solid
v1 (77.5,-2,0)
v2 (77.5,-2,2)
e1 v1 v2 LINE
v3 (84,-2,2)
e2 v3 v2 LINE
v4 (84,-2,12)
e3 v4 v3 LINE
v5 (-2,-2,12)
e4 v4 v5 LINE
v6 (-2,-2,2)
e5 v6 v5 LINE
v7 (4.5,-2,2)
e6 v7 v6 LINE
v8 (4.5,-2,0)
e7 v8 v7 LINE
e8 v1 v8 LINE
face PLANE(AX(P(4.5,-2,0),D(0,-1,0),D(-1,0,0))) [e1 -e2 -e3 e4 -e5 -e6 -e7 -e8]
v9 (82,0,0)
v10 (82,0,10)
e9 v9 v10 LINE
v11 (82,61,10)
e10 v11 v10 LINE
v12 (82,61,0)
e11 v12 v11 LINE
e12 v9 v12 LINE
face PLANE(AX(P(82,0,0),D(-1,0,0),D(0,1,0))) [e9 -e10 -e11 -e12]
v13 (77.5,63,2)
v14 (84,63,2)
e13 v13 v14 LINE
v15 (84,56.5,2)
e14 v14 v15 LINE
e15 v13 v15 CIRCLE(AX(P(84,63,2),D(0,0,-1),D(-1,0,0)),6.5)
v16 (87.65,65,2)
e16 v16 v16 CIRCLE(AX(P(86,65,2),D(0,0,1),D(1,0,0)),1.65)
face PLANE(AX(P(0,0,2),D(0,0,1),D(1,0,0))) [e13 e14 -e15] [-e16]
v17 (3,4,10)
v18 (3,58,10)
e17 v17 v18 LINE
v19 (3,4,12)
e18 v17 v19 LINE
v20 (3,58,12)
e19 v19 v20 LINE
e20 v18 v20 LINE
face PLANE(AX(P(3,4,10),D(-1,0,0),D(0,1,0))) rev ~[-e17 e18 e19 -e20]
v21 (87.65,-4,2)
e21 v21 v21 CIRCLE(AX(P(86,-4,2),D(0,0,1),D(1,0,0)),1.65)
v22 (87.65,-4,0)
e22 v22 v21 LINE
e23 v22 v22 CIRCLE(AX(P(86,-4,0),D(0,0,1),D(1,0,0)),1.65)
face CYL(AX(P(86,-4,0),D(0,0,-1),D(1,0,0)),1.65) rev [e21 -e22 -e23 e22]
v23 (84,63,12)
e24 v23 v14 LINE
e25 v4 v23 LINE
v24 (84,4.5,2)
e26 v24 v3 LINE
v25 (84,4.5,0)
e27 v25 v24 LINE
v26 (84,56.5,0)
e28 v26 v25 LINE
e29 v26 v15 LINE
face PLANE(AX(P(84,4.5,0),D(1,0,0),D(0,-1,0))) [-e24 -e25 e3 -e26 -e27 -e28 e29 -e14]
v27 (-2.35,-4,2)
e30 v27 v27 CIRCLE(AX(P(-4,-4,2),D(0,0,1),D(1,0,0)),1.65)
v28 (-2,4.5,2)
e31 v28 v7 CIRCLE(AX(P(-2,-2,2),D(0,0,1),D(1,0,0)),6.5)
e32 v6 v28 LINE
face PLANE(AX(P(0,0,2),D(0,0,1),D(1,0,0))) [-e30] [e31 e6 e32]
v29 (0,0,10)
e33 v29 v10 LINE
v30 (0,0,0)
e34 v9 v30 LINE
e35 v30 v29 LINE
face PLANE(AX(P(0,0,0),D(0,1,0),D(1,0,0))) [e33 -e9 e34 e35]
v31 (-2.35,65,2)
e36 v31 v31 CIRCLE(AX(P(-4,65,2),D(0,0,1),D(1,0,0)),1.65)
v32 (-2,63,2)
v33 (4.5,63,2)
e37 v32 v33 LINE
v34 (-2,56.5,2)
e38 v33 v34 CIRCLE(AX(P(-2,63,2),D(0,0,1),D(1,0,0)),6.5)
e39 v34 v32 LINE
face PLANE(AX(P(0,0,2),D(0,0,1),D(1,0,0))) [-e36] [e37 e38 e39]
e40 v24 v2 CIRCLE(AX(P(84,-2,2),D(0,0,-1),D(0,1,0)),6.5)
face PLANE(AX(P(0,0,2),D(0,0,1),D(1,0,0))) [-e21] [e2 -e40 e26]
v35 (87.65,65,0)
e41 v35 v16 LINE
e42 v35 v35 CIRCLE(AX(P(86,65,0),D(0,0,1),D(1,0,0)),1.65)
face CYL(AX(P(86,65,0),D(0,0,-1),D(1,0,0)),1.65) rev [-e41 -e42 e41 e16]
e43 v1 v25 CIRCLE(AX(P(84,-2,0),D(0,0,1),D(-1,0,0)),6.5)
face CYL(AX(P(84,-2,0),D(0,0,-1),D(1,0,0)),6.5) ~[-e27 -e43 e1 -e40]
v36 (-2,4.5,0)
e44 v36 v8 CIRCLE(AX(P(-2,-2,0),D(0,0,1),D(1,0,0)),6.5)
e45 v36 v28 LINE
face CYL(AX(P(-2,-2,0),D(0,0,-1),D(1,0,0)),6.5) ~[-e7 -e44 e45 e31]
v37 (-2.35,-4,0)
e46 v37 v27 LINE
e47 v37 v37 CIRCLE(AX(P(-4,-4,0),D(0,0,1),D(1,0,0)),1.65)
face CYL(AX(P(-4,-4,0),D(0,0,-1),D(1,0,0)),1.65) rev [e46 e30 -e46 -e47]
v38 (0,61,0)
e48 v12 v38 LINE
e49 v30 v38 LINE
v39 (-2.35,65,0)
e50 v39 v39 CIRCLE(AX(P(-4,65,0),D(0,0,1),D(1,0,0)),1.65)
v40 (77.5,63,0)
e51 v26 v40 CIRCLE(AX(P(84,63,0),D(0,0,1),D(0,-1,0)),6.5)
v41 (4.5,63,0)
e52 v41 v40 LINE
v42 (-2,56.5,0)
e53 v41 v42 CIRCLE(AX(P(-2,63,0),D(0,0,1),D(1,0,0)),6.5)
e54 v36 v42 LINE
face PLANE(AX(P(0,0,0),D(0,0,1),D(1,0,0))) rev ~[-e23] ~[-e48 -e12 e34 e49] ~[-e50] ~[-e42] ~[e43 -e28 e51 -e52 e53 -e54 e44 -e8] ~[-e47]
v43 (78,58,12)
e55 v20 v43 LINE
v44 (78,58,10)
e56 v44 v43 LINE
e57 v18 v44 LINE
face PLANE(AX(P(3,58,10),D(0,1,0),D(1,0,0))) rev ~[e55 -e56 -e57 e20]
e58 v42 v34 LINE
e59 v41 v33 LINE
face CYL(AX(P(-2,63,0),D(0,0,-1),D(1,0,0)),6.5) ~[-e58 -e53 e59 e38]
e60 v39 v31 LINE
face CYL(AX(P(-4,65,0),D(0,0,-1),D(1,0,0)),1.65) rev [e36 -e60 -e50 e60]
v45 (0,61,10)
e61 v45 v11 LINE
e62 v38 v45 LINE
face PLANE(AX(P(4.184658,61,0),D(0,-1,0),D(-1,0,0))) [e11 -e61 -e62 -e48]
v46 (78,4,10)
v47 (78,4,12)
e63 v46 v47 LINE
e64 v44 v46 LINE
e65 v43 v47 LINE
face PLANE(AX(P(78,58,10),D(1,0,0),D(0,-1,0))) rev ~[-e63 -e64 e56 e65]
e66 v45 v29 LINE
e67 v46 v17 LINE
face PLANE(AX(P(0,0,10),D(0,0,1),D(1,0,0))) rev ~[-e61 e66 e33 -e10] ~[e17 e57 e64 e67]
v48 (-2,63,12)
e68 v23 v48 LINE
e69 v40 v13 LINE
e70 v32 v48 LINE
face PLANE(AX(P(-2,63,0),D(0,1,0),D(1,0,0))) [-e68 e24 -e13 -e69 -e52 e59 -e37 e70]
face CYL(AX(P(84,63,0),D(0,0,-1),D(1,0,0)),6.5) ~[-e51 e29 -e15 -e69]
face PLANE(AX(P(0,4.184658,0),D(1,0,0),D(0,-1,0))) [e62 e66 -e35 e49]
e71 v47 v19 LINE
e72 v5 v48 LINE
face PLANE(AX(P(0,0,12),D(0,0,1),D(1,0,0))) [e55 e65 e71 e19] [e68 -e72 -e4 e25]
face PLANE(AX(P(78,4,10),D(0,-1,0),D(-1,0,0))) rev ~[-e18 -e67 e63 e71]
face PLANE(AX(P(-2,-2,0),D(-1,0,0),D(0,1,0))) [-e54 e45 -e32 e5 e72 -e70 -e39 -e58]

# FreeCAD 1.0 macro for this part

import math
import FreeCAD as App
import Part
import Sketcher

doc = App.newDocument("Part")
params = doc.addObject("Spreadsheet::Sheet", "Params")
for row, (alias, value) in enumerate([
    ("sketch1_diameter", "3.3 mm"),
    ("sketch1_radius", "6.5 mm"),
    ("pad1_length", "2 mm"),
    ("sketch2_width", "82 mm"),
    ("sketch2_height", "61 mm"),
    ("pad2_length", "10 mm"),
    ("sketch3_width", "86 mm"),
    ("sketch3_width2", "75 mm"),
    ("sketch3_height", "65 mm"),
    ("sketch3_height2", "54 mm"),
    ("pad3_length", "2 mm"),
], start=1):
    params.set(f"A{row}", alias)
    params.set(f"B{row}", "=" + value)
    params.setAlias(f"B{row}", alias)

body = doc.addObject("PartDesign::Body", "Body")
body.AllowCompound = True

# Sketch on XY plane
sketch1 = doc.addObject("Sketcher::SketchObject", "Sketch")
body.addObject(sketch1)
sketch1.AttachmentSupport = (doc.XY_Plane, [""])
sketch1.MapMode = "FlatFace"
sketch1.addGeometry([
    Part.ArcOfCircle(Part.Circle(App.Vector(-2, -2, 0), App.Vector(0, 0, 1), 6.5), math.radians(90), math.radians(360)),  # 0
    Part.LineSegment(App.Vector(4.5, -2, 0), App.Vector(-2, -2, 0)),  # 1
    Part.LineSegment(App.Vector(-2, -2, 0), App.Vector(-2, 4.5, 0)),  # 2
    Part.Circle(App.Vector(-4, -4, 0), App.Vector(0, 0, 1), 1.6),  # 3
    Part.LineSegment(App.Vector(84, -2, 0), App.Vector(77.5, -2, 0)),  # 4
    Part.ArcOfCircle(Part.Circle(App.Vector(84, -2, 0), App.Vector(0, 0, 1), 6.5), math.radians(180), math.radians(450)),  # 5
    Part.LineSegment(App.Vector(84, 4.5, 0), App.Vector(84, -2, 0)),  # 6
    Part.Circle(App.Vector(86, -4, 0), App.Vector(0, 0, 1), 1.6),  # 7
    Part.ArcOfCircle(Part.Circle(App.Vector(-2, 63, 0), App.Vector(0, 0, 1), 6.5), math.radians(0), math.radians(270)),  # 8
    Part.LineSegment(App.Vector(-2, 56.5, 0), App.Vector(-2, 63, 0)),  # 9
    Part.LineSegment(App.Vector(-2, 63, 0), App.Vector(4.5, 63, 0)),  # 10
    Part.Circle(App.Vector(-4, 65, 0), App.Vector(0, 0, 1), 1.6),  # 11
    Part.LineSegment(App.Vector(84, 63, 0), App.Vector(84, 56.5, 0)),  # 12
    Part.ArcOfCircle(Part.Circle(App.Vector(84, 63, 0), App.Vector(0, 0, 1), 6.5), math.radians(-90), math.radians(180)),  # 13
    Part.LineSegment(App.Vector(77.5, 63, 0), App.Vector(84, 63, 0)),  # 14
    Part.Circle(App.Vector(86, 65, 0), App.Vector(0, 0, 1), 1.6),  # 15
], False)
sketch1.addConstraint([
    Sketcher.Constraint("Coincident", 0, 2, 1, 1),
    Sketcher.Constraint("Coincident", 1, 2, 2, 1),
    Sketcher.Constraint("Coincident", 2, 2, 0, 1),
    Sketcher.Constraint("Coincident", 4, 2, 5, 1),
    Sketcher.Constraint("Coincident", 5, 2, 6, 1),
    Sketcher.Constraint("Coincident", 6, 2, 4, 1),
    Sketcher.Constraint("Coincident", 8, 2, 9, 1),
    Sketcher.Constraint("Coincident", 9, 2, 10, 1),
    Sketcher.Constraint("Coincident", 10, 2, 8, 1),
    Sketcher.Constraint("Coincident", 12, 2, 13, 1),
    Sketcher.Constraint("Coincident", 13, 2, 14, 1),
    Sketcher.Constraint("Coincident", 14, 2, 12, 1),
    Sketcher.Constraint("Horizontal", 1),
    Sketcher.Constraint("Vertical", 2),
    Sketcher.Constraint("Horizontal", 4),
    Sketcher.Constraint("Vertical", 6),
    Sketcher.Constraint("Vertical", 9),
    Sketcher.Constraint("Horizontal", 10),
    Sketcher.Constraint("Vertical", 12),
    Sketcher.Constraint("Horizontal", 14),
    Sketcher.Constraint("Coincident", 1, 2, 0, 3),
    Sketcher.Constraint("Coincident", 6, 2, 5, 3),
    Sketcher.Constraint("Coincident", 9, 2, 8, 3),
    Sketcher.Constraint("Coincident", 14, 2, 13, 3),
    Sketcher.Constraint("Equal", 0, 5),
    Sketcher.Constraint("Equal", 3, 7),
    Sketcher.Constraint("Equal", 5, 8),
    Sketcher.Constraint("Equal", 7, 11),
    Sketcher.Constraint("Equal", 8, 13),
    Sketcher.Constraint("Equal", 11, 15),
    Sketcher.Constraint("Horizontal", 0, 3, 5, 3),
    Sketcher.Constraint("Horizontal", 3, 3, 7, 3),
    Sketcher.Constraint("Horizontal", 8, 3, 13, 3),
    Sketcher.Constraint("Horizontal", 11, 3, 15, 3),
    Sketcher.Constraint("Vertical", 0, 3, 8, 3),
    Sketcher.Constraint("Vertical", 3, 3, 11, 3),
    Sketcher.Constraint("Vertical", 5, 3, 13, 3),
    Sketcher.Constraint("Vertical", 7, 3, 15, 3),
    Sketcher.Constraint("Diameter", 3, 3.3),
    Sketcher.Constraint("Radius", 0, 6.5),
    Sketcher.Constraint("DistanceX", 0, 3, -1, 1, 2.0),
    Sketcher.Constraint("DistanceY", 0, 3, -1, 1, 2.0),
    Sketcher.Constraint("DistanceX", 3, 3, -1, 1, 4.0),
    Sketcher.Constraint("DistanceY", 3, 3, -1, 1, 4.0),
    Sketcher.Constraint("DistanceX", 5, 3, 7, 3, 2.0),
    Sketcher.Constraint("DistanceY", 8, 3, 11, 3, 2.0),
    Sketcher.Constraint("DistanceX", -1, 1, 5, 3, 84.0),
    Sketcher.Constraint("DistanceY", -1, 1, 8, 3, 63.0),
])
sketch1.setExpression("Constraints[38]", "Params.sketch1_diameter")
sketch1.setExpression("Constraints[39]", "Params.sketch1_radius")
pad1 = doc.addObject("PartDesign::Pad", "Pad")
body.addObject(pad1)
pad1.Profile = sketch1
pad1.setExpression("Length", "Params.pad1_length")

# Sketch on XY plane
sketch2 = doc.addObject("Sketcher::SketchObject", "Sketch001")
body.addObject(sketch2)
sketch2.AttachmentSupport = (doc.XY_Plane, [""])
sketch2.MapMode = "FlatFace"
sketch2.addGeometry([
    Part.LineSegment(App.Vector(-2, -2, 0), App.Vector(84, -2, 0)),  # 0
    Part.LineSegment(App.Vector(84, -2, 0), App.Vector(84, 63, 0)),  # 1
    Part.LineSegment(App.Vector(84, 63, 0), App.Vector(-2, 63, 0)),  # 2
    Part.LineSegment(App.Vector(-2, 63, 0), App.Vector(-2, -2, 0)),  # 3
    Part.LineSegment(App.Vector(0, 0, 0), App.Vector(0, 61, 0)),  # 4
    Part.LineSegment(App.Vector(0, 61, 0), App.Vector(82, 61, 0)),  # 5
    Part.LineSegment(App.Vector(82, 61, 0), App.Vector(82, 0, 0)),  # 6
    Part.LineSegment(App.Vector(82, 0, 0), App.Vector(0, 0, 0)),  # 7
], False)
sketch2.addConstraint([
    Sketcher.Constraint("Coincident", 0, 2, 1, 1),
    Sketcher.Constraint("Coincident", 1, 2, 2, 1),
    Sketcher.Constraint("Coincident", 2, 2, 3, 1),
    Sketcher.Constraint("Coincident", 3, 2, 0, 1),
    Sketcher.Constraint("Coincident", 4, 2, 5, 1),
    Sketcher.Constraint("Coincident", 5, 2, 6, 1),
    Sketcher.Constraint("Coincident", 6, 2, 7, 1),
    Sketcher.Constraint("Coincident", 7, 2, 4, 1),
    Sketcher.Constraint("Horizontal", 0),
    Sketcher.Constraint("Vertical", 1),
    Sketcher.Constraint("Horizontal", 2),
    Sketcher.Constraint("Vertical", 3),
    Sketcher.Constraint("Vertical", 4),
    Sketcher.Constraint("Horizontal", 5),
    Sketcher.Constraint("Vertical", 6),
    Sketcher.Constraint("Horizontal", 7),
    Sketcher.Constraint("Coincident", 7, 2, -1, 1),
    Sketcher.Constraint("DistanceX", 5, 1, 5, 2, 82.0),
    Sketcher.Constraint("DistanceY", 4, 1, 4, 2, 61.0),
    Sketcher.Constraint("DistanceY", 0, 2, -1, 1, 2.0),
    Sketcher.Constraint("DistanceX", 2, 2, -1, 1, 2.0),
    Sketcher.Constraint("DistanceY", 4, 2, 2, 2, 2.0),
    Sketcher.Constraint("DistanceX", 5, 2, 1, 2, 2.0),
])
sketch2.setExpression("Constraints[17]", "Params.sketch2_width")
sketch2.setExpression("Constraints[18]", "Params.sketch2_height")
pad2 = doc.addObject("PartDesign::Pad", "Pad001")
body.addObject(pad2)
pad2.Profile = sketch2
pad2.setExpression("Length", "Params.pad2_length")

# Sketch on XY plane
sketch3 = doc.addObject("Sketcher::SketchObject", "Sketch002")
body.addObject(sketch3)
sketch3.AttachmentSupport = (doc.XY_Plane, [""])
sketch3.MapMode = "FlatFace"
sketch3.AttachmentOffset = App.Placement(App.Vector(0, 0, 10), App.Rotation())
sketch3.addGeometry([
    Part.LineSegment(App.Vector(-2, -2, 0), App.Vector(84, -2, 0)),  # 0
    Part.LineSegment(App.Vector(84, -2, 0), App.Vector(84, 63, 0)),  # 1
    Part.LineSegment(App.Vector(84, 63, 0), App.Vector(-2, 63, 0)),  # 2
    Part.LineSegment(App.Vector(-2, 63, 0), App.Vector(-2, -2, 0)),  # 3
    Part.LineSegment(App.Vector(3, 58, 0), App.Vector(78, 58, 0)),  # 4
    Part.LineSegment(App.Vector(78, 58, 0), App.Vector(78, 4, 0)),  # 5
    Part.LineSegment(App.Vector(78, 4, 0), App.Vector(3, 4, 0)),  # 6
    Part.LineSegment(App.Vector(3, 4, 0), App.Vector(3, 58, 0)),  # 7
], False)
sketch3.addConstraint([
    Sketcher.Constraint("Coincident", 0, 2, 1, 1),
    Sketcher.Constraint("Coincident", 1, 2, 2, 1),
    Sketcher.Constraint("Coincident", 2, 2, 3, 1),
    Sketcher.Constraint("Coincident", 3, 2, 0, 1),
    Sketcher.Constraint("Coincident", 4, 2, 5, 1),
    Sketcher.Constraint("Coincident", 5, 2, 6, 1),
    Sketcher.Constraint("Coincident", 6, 2, 7, 1),
    Sketcher.Constraint("Coincident", 7, 2, 4, 1),
    Sketcher.Constraint("Horizontal", 0),
    Sketcher.Constraint("Vertical", 1),
    Sketcher.Constraint("Horizontal", 2),
    Sketcher.Constraint("Vertical", 3),
    Sketcher.Constraint("Horizontal", 4),
    Sketcher.Constraint("Vertical", 5),
    Sketcher.Constraint("Horizontal", 6),
    Sketcher.Constraint("Vertical", 7),
    Sketcher.Constraint("DistanceY", 0, 2, -1, 1, 2.0),
    Sketcher.Constraint("DistanceX", 2, 2, -1, 1, 2.0),
    Sketcher.Constraint("DistanceY", -1, 1, 5, 2, 4.0),
    Sketcher.Constraint("DistanceX", -1, 1, 6, 2, 3.0),
    Sketcher.Constraint("DistanceX", 0, 1, 0, 2, 86.0),
    Sketcher.Constraint("DistanceX", 4, 1, 4, 2, 75.0),
    Sketcher.Constraint("DistanceY", 1, 1, 1, 2, 65.0),
    Sketcher.Constraint("DistanceY", 5, 2, 5, 1, 54.0),
])
sketch3.setExpression("Constraints[20]", "Params.sketch3_width")
sketch3.setExpression("Constraints[21]", "Params.sketch3_width2")
sketch3.setExpression("Constraints[22]", "Params.sketch3_height")
sketch3.setExpression("Constraints[23]", "Params.sketch3_height2")
pad3 = doc.addObject("PartDesign::Pad", "Pad002")
body.addObject(pad3)
pad3.Profile = sketch3
pad3.setExpression("Length", "Params.pad3_length")

doc.recompute()
